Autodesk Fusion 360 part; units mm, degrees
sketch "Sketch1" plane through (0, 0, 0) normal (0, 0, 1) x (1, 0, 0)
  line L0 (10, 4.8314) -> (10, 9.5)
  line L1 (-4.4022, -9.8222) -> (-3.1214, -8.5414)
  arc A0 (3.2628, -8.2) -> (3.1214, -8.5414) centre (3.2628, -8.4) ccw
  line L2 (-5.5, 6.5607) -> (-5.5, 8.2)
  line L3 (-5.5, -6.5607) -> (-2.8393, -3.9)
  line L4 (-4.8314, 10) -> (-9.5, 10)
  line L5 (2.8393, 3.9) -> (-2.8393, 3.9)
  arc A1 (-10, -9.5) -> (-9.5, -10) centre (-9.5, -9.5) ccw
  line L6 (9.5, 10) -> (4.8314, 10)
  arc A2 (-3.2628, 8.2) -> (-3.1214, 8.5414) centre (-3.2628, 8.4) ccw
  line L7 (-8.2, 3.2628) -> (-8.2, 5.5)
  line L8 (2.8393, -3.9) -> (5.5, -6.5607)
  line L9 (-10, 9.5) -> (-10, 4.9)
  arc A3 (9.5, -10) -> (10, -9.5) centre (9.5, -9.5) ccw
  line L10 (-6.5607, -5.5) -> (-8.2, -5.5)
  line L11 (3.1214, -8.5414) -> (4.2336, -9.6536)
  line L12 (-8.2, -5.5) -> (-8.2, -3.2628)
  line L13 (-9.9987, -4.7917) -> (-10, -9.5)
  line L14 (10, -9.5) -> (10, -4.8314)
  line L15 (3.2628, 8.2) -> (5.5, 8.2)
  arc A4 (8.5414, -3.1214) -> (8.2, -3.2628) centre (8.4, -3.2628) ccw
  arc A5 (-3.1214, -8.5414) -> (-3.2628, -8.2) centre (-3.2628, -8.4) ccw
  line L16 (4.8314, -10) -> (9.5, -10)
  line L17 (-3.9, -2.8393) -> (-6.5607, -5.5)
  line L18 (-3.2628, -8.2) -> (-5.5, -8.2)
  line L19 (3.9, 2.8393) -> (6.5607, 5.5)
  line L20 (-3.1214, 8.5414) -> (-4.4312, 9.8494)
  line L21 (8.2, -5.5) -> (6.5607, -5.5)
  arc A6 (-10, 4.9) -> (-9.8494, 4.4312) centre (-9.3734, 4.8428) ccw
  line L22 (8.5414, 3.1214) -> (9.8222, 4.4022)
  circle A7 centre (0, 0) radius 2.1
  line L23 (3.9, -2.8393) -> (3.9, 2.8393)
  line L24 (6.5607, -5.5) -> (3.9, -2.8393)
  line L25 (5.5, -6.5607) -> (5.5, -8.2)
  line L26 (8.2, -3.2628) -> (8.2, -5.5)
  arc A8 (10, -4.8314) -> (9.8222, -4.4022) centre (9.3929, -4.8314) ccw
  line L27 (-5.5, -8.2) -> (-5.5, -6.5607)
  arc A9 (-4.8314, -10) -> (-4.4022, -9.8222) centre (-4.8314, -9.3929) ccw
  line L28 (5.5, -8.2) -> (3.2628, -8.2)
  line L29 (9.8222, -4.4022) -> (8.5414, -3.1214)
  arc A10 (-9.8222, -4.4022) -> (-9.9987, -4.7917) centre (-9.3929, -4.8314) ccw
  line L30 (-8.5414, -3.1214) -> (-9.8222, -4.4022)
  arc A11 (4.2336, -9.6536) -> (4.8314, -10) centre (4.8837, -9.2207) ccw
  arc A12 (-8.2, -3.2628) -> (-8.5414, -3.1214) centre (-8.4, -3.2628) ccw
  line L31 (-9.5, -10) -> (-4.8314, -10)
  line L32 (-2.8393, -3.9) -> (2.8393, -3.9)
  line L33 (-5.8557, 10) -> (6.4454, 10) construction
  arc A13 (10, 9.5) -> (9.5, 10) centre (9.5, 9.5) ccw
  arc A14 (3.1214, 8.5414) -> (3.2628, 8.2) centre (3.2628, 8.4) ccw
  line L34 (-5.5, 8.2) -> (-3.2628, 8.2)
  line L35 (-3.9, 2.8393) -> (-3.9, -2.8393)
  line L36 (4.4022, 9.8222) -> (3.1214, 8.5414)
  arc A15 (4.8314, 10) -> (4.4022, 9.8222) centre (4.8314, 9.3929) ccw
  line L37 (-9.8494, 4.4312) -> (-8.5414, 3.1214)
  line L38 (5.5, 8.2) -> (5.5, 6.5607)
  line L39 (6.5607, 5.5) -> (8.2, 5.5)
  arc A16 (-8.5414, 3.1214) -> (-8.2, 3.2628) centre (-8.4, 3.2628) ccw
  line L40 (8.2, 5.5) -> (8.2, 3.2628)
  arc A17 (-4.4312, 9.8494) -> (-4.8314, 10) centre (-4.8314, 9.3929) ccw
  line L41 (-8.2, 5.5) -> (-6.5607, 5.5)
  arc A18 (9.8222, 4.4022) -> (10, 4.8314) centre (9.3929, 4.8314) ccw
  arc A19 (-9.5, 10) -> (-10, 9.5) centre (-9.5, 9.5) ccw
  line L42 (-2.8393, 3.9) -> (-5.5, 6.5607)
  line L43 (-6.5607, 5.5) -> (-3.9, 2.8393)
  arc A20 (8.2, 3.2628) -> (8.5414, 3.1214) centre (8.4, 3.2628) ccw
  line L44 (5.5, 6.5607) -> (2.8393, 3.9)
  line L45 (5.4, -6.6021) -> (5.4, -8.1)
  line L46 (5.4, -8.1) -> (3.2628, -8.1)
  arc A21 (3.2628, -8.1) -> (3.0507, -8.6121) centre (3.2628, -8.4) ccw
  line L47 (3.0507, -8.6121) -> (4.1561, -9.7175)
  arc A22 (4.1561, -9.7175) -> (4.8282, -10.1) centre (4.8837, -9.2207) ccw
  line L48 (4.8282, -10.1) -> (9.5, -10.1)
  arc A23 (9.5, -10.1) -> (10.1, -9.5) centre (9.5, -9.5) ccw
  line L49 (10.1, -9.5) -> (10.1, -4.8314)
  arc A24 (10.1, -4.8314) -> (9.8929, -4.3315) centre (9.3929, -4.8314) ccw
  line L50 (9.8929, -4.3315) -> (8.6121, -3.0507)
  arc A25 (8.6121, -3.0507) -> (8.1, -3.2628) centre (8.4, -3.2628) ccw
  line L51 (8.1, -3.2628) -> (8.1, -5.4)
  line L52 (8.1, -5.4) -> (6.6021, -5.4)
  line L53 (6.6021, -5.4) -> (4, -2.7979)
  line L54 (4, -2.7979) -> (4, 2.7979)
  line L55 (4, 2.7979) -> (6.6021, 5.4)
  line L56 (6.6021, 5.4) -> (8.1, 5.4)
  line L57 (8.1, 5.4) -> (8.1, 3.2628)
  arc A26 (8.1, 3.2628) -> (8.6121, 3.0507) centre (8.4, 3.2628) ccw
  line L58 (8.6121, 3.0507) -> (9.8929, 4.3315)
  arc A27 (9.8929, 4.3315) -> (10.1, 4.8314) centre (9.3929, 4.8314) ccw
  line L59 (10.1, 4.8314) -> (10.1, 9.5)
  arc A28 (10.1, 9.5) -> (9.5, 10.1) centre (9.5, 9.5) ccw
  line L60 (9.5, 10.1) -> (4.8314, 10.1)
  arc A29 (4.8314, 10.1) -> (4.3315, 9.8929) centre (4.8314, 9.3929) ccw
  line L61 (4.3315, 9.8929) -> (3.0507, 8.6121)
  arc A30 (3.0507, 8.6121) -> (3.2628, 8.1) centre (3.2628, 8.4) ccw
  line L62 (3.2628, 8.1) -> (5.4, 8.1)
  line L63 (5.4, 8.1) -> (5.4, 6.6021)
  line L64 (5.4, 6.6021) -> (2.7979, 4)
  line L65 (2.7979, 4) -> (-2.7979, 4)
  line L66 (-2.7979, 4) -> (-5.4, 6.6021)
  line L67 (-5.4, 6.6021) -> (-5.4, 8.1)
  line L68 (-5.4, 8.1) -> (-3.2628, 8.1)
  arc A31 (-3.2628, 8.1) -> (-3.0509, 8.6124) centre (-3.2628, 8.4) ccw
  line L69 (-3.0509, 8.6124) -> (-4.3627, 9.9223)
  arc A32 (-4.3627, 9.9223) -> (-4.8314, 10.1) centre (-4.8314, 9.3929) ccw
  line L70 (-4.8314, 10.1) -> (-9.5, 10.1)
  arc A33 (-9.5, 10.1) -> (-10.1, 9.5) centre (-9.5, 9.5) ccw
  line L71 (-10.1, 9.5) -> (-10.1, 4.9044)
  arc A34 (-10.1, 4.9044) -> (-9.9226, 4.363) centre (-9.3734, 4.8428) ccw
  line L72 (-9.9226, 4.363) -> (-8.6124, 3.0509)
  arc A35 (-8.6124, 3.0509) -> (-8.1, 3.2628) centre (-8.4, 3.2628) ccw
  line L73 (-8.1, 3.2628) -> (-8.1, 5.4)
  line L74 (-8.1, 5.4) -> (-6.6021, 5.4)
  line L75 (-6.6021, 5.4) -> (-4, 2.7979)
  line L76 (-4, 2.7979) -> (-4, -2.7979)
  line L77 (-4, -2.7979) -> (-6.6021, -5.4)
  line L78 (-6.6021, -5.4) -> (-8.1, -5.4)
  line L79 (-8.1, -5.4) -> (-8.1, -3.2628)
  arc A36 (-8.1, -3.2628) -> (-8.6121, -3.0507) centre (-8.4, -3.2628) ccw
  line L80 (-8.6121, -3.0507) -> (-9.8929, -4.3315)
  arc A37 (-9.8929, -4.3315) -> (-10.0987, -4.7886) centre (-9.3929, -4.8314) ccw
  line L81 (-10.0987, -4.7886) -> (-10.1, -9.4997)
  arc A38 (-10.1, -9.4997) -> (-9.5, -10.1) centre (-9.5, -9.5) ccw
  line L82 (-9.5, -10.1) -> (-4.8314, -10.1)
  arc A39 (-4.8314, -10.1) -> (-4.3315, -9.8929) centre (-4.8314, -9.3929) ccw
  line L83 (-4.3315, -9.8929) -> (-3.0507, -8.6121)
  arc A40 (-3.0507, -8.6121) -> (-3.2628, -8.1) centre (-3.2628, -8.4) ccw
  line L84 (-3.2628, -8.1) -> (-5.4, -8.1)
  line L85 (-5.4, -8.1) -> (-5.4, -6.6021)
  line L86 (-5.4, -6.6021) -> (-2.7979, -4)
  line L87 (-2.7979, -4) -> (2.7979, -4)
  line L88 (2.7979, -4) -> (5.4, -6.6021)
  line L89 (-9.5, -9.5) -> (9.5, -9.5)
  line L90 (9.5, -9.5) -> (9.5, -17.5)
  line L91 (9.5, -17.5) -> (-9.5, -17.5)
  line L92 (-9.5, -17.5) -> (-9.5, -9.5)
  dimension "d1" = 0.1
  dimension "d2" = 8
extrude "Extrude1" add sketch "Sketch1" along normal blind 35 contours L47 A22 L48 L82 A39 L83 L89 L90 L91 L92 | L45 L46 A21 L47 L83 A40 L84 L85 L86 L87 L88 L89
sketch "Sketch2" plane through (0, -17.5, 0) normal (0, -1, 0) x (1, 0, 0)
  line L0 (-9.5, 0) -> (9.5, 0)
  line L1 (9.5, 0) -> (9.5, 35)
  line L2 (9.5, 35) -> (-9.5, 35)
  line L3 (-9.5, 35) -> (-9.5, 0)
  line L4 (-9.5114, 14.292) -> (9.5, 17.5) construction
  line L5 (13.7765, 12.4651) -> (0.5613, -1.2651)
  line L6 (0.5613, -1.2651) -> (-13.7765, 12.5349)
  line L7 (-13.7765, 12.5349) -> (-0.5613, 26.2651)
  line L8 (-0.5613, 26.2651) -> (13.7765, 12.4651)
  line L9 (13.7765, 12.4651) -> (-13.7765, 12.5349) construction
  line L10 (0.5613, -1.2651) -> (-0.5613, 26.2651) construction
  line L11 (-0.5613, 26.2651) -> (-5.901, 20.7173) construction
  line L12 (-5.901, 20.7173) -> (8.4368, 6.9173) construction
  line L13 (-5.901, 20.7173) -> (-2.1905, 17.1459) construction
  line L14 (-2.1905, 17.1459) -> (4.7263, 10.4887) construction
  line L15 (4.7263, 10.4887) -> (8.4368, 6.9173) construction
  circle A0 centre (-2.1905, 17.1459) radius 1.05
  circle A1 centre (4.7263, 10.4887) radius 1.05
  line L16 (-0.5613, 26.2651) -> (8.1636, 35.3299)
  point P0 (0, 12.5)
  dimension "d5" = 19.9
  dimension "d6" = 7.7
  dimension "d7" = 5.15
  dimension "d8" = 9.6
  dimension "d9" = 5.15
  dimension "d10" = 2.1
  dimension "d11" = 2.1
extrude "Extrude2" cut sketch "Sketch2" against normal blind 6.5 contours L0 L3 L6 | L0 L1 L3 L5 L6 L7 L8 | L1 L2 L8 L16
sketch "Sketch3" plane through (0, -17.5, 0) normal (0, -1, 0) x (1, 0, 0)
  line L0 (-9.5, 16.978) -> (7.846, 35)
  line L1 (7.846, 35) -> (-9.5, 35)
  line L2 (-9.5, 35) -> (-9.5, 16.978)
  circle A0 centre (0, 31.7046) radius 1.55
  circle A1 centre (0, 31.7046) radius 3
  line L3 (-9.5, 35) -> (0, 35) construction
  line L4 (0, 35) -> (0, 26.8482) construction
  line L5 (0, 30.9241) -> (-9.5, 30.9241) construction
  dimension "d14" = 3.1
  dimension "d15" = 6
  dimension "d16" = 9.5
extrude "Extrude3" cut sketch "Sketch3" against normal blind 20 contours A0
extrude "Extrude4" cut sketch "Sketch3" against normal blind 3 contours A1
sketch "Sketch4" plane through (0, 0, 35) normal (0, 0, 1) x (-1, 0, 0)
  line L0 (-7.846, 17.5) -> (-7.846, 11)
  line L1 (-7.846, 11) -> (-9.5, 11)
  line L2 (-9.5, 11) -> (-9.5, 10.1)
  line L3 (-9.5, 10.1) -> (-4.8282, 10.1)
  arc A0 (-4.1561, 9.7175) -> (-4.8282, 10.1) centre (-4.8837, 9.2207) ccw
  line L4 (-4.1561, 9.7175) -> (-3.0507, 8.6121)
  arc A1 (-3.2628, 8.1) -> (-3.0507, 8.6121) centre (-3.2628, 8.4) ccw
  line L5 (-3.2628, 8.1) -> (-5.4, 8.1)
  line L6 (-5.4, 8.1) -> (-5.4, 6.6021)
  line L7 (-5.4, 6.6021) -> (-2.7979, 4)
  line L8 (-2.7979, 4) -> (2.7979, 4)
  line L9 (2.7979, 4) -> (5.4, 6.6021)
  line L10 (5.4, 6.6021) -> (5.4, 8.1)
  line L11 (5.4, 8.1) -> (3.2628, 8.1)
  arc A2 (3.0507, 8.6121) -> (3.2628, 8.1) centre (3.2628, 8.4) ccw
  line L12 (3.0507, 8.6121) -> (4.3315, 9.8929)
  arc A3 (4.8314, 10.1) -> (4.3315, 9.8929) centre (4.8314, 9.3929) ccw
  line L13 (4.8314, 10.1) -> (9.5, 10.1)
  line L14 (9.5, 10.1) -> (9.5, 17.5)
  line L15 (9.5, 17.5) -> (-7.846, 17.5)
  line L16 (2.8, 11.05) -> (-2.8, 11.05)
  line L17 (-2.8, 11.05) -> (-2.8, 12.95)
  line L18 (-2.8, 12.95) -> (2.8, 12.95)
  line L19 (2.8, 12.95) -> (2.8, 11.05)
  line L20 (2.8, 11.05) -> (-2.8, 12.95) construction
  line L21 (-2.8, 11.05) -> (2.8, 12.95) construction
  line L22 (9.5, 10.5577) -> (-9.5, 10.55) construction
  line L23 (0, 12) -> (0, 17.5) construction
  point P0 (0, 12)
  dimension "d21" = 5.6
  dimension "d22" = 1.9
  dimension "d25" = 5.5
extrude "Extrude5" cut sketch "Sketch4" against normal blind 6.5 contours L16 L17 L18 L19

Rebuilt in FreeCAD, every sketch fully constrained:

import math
import FreeCAD as App
import Part
import Sketcher
from FreeCAD import Vector
Q = App.Units.Quantity


def add_polygon(sketch, points):
    """Adds a closed chain of lines whose ends are joined by coincident constraints."""
    first, n = sketch.GeometryCount, len(points)
    for a, b in zip(points, points[1:] + points[:1]):
        sketch.addGeometry(Part.LineSegment(App.Vector(*a, 0), App.Vector(*b, 0)), False)
    for i in range(n):
        sketch.addConstraint(Sketcher.Constraint("Coincident", first + i, 2, first + (i + 1) % n, 1))

doc = App.newDocument("Part")
body = doc.addObject("PartDesign::Body", "Body")

# Sketch on XY plane
sketch1 = body.newObject("Sketcher::SketchObject", "Sketch")
sketch1.AttachmentSupport = (doc.getObject("XY_Plane"), [""])
sketch1.MapMode = "FlatFace"
sketch1.addGeometry(Part.LineSegment(Vector(9.5, -17.5, 0), Vector(9.5, -10.1, 0)), False)
sketch1.addGeometry(Part.LineSegment(Vector(9.5, -10.1, 0), Vector(4.8282, -10.1, 0)), False)
sketch1.addGeometry(Part.ArcOfCircle(Part.Circle(Vector(4.8837, -9.2207, 0), Vector(0, 0, 1), 0.881029), math.radians(-145.675022), math.radians(-93.611626)), False)
sketch1.addGeometry(Part.LineSegment(Vector(4.1561, -9.7175, 0), Vector(3.0507, -8.6121, 0)), False)
sketch1.addGeometry(Part.ArcOfCircle(Part.Circle(Vector(3.2628, -8.4, 0), Vector(0, 0, 1), 0.3), math.radians(90), math.radians(225)), False)
sketch1.addGeometry(Part.LineSegment(Vector(3.2628, -8.1, 0), Vector(5.4, -8.1, 0)), False)
sketch1.addGeometry(Part.LineSegment(Vector(5.4, -8.1, 0), Vector(5.4, -6.6021, 0)), False)
sketch1.addGeometry(Part.LineSegment(Vector(5.4, -6.6021, 0), Vector(2.7979, -4, 0)), False)
sketch1.addGeometry(Part.LineSegment(Vector(2.7979, -4, 0), Vector(-2.7979, -4, 0)), False)
sketch1.addGeometry(Part.LineSegment(Vector(-2.7979, -4, 0), Vector(-5.4, -6.6021, 0)), False)
sketch1.addGeometry(Part.LineSegment(Vector(-5.4, -6.6021, 0), Vector(-5.4, -8.1, 0)), False)
sketch1.addGeometry(Part.LineSegment(Vector(-5.4, -8.1, 0), Vector(-3.2628, -8.1, 0)), False)
sketch1.addGeometry(Part.ArcOfCircle(Part.Circle(Vector(-3.2628, -8.4, 0), Vector(0, 0, 1), 0.299955), math.radians(-45), math.radians(90)), False)
sketch1.addGeometry(Part.LineSegment(Vector(-3.0507, -8.6121, 0), Vector(-4.3315, -9.8929, 0)), False)
sketch1.addGeometry(Part.ArcOfCircle(Part.Circle(Vector(-4.8314, -9.3929, 0), Vector(0, 0, 1), 0.7071), math.radians(-90), math.radians(-45.00573)), False)
sketch1.addGeometry(Part.LineSegment(Vector(-4.8314, -10.1, 0), Vector(-9.5, -10.1, 0)), False)
sketch1.addGeometry(Part.LineSegment(Vector(-9.5, -10.1, 0), Vector(-9.5, -17.5, 0)), False)
sketch1.addGeometry(Part.LineSegment(Vector(-9.5, -17.5, 0), Vector(9.5, -17.5, 0)), False)
sketch1.addConstraint(Sketcher.Constraint("Coincident", 0, 2, 1, 1))
sketch1.addConstraint(Sketcher.Constraint("Coincident", 1, 2, 2, 2))
sketch1.addConstraint(Sketcher.Constraint("Coincident", 2, 1, 3, 1))
sketch1.addConstraint(Sketcher.Constraint("Tangent", 3, 2, 4, 2))
sketch1.addConstraint(Sketcher.Constraint("Tangent", 4, 1, 5, 1))
sketch1.addConstraint(Sketcher.Constraint("Coincident", 5, 2, 6, 1))
sketch1.addConstraint(Sketcher.Constraint("Coincident", 6, 2, 7, 1))
sketch1.addConstraint(Sketcher.Constraint("Coincident", 7, 2, 8, 1))
sketch1.addConstraint(Sketcher.Constraint("Coincident", 8, 2, 9, 1))
sketch1.addConstraint(Sketcher.Constraint("Coincident", 9, 2, 10, 1))
sketch1.addConstraint(Sketcher.Constraint("Coincident", 10, 2, 11, 1))
sketch1.addConstraint(Sketcher.Constraint("Tangent", 11, 2, 12, 2))
sketch1.addConstraint(Sketcher.Constraint("Tangent", 12, 1, 13, 1))
sketch1.addConstraint(Sketcher.Constraint("Tangent", 13, 2, 14, 2))
sketch1.addConstraint(Sketcher.Constraint("Tangent", 14, 1, 15, 1))
sketch1.addConstraint(Sketcher.Constraint("Coincident", 15, 2, 16, 1))
sketch1.addConstraint(Sketcher.Constraint("Coincident", 16, 2, 17, 1))
sketch1.addConstraint(Sketcher.Constraint("Coincident", 17, 2, 0, 1))
sketch1.addConstraint(Sketcher.Constraint("Vertical", 0))
sketch1.addConstraint(Sketcher.Constraint("Horizontal", 1))
sketch1.addConstraint(Sketcher.Constraint("Horizontal", 5))
sketch1.addConstraint(Sketcher.Constraint("Vertical", 6))
sketch1.addConstraint(Sketcher.Constraint("Horizontal", 8))
sketch1.addConstraint(Sketcher.Constraint("Vertical", 10))
sketch1.addConstraint(Sketcher.Constraint("Horizontal", 11))
sketch1.addConstraint(Sketcher.Constraint("Horizontal", 15))
sketch1.addConstraint(Sketcher.Constraint("Vertical", 16))
sketch1.addConstraint(Sketcher.Constraint("Horizontal", 17))
sketch1.addConstraint(Sketcher.Constraint("Equal", 4, 12))
sketch1.addConstraint(Sketcher.Constraint("Symmetric", 4, 3, 12, 3, -2))
sketch1.addConstraint(Sketcher.Constraint("Symmetric", 6, 2, 9, 2, -2))
sketch1.addConstraint(Sketcher.Constraint("Symmetric", 0, 2, 15, 2, -2))
sketch1.addConstraint(Sketcher.Constraint("Parallel", 3, 7))
sketch1.addConstraint(Sketcher.Constraint("Perpendicular", 7, 9))
sketch1.addConstraint(Sketcher.Constraint("Parallel", 9, 13))
sketch1.addConstraint(Sketcher.Constraint("Horizontal", 3, 2, 12, 1))
sketch1.addConstraint(Sketcher.Constraint("Radius", 4, Q("0.3 mm")))
sketch1.addConstraint(Sketcher.Constraint("DistanceX", 17, 1, 17, 2, Q("19 mm")))
sketch1.addConstraint(Sketcher.Constraint("DistanceY", 0, 1, 0, 2, Q("7.4 mm")))
sketch1.addConstraint(Sketcher.Constraint("DistanceY", 7, 2, -1, 1, Q("4 mm")))
sketch1.addConstraint(Sketcher.Constraint("Radius", 2, Q("0.881 mm")))
sketch1.addConstraint(Sketcher.Constraint("Radius", 14, Q("0.707 mm")))
sketch1.addConstraint(Sketcher.Constraint("DistanceY", 1, 2, 4, 1, Q("2 mm")))
sketch1.addConstraint(Sketcher.Constraint("DistanceY", 4, 3, -1, 1, Q("8.4 mm")))
sketch1.addConstraint(Sketcher.Constraint("DistanceX", -1, 1, 5, 2, Q("5.4 mm")))
sketch1.addConstraint(Sketcher.Constraint("Distance", 7, Q("3.68 mm")))
sketch1.addConstraint(Sketcher.Constraint("DistanceX", 1, 2, 1, 1, Q("4.6718 mm")))
sketch1.addConstraint(Sketcher.Constraint("DistanceX", 5, 1, 5, 2, Q("2.1372 mm")))
sketch1.addConstraint(Sketcher.Constraint("DistanceX", -1, 1, 2, 1, Q("4.156 mm")))
pad1 = body.newObject("PartDesign::Pad", "Pad")
pad1.Profile = sketch1
pad1.Length = 35

# Sketch on XZ plane
sketch2 = body.newObject("Sketcher::SketchObject", "Sketch001")
sketch2.AttachmentSupport = (doc.getObject("XZ_Plane"), [""])
sketch2.MapMode = "FlatFace"
sketch2.AttachmentOffset = App.Placement(Vector(0, 0, 17.5), App.Rotation())
add_polygon(sketch2, [(-9.5, 0), (1.778948, 0), (9.5, 8.021944), (9.5, 35), (7.84607, 35), (-0.5613, 26.2651), (-9.5, 16.978056)])  # lines 0-6
sketch2.addGeometry(Part.Circle(Vector(-2.1905, 17.1459, 0), Vector(0, 0, 1), 1.05), False)  # 7
sketch2.addGeometry(Part.Circle(Vector(4.7263, 10.4887, 0), Vector(0, 0, 1), 1.05), False)  # 8
sketch2.addConstraint(Sketcher.Constraint("Horizontal", 0))
sketch2.addConstraint(Sketcher.Constraint("Vertical", 2))
sketch2.addConstraint(Sketcher.Constraint("Horizontal", 3))
sketch2.addConstraint(Sketcher.Constraint("Vertical", 6))
sketch2.addConstraint(Sketcher.Constraint("Equal", 7, 8))
sketch2.addConstraint(Sketcher.Constraint("PointOnObject", 0, 2, -1))
sketch2.addConstraint(Sketcher.Constraint("Parallel", 1, 4))
sketch2.addConstraint(Sketcher.Constraint("Parallel", 4, 5))
sketch2.addConstraint(Sketcher.Constraint("Diameter", 7, Q("2.1 mm")))
sketch2.addConstraint(Sketcher.Constraint("DistanceY", -1, 1, 2, 2, Q("35 mm")))
sketch2.addConstraint(Sketcher.Constraint("DistanceX", 5, 2, 1, 2, Q("19 mm")))
sketch2.addConstraint(Sketcher.Constraint("DistanceX", -1, 1, 1, 2, Q("9.5 mm")))
sketch2.addConstraint(Sketcher.Constraint("Distance", 5, Q("12.89 mm")))
sketch2.addConstraint(Sketcher.Constraint("DistanceX", 0, 1, 0, 2, Q("11.279 mm")))
sketch2.addConstraint(Sketcher.Constraint("DistanceX", 3, 2, 3, 1, Q("1.654 mm")))
sketch2.addConstraint(Sketcher.Constraint("DistanceY", 2, 1, 2, 2, Q("26.978 mm")))
sketch2.addConstraint(Sketcher.Constraint("DistanceY", -1, 1, 7, 3, Q("17.146 mm")))
sketch2.addConstraint(Sketcher.Constraint("DistanceX", 7, 3, -1, 1, Q("2.1905 mm")))
sketch2.addConstraint(Sketcher.Constraint("DistanceX", -1, 1, 8, 3, Q("4.7263 mm")))
sketch2.addConstraint(Sketcher.Constraint("DistanceY", -1, 1, 8, 3, Q("10.4887 mm")))
pocket1 = body.newObject("PartDesign::Pocket", "Pocket")
pocket1.Profile = sketch2
pocket1.Length = 6.5

# Sketch on XZ plane
sketch3 = body.newObject("Sketcher::SketchObject", "Sketch002")
sketch3.AttachmentSupport = (doc.getObject("XZ_Plane"), [""])
sketch3.MapMode = "FlatFace"
sketch3.AttachmentOffset = App.Placement(Vector(0, 0, 17.5), App.Rotation())
sketch3.addGeometry(Part.Circle(Vector(0, 31.7046, 0), Vector(0, 0, 1), 1.55), False)
sketch3.addConstraint(Sketcher.Constraint("PointOnObject", 0, 3, -2))
sketch3.addConstraint(Sketcher.Constraint("Diameter", 0, Q("3.1 mm")))
sketch3.addConstraint(Sketcher.Constraint("DistanceY", -1, 1, 0, 3, Q("31.7046 mm")))
pocket2 = body.newObject("PartDesign::Pocket", "Pocket001")
pocket2.Profile = sketch3
pocket2.Length = 20

# Sketch on XZ plane
sketch4 = body.newObject("Sketcher::SketchObject", "Sketch003")
sketch4.AttachmentSupport = (doc.getObject("XZ_Plane"), [""])
sketch4.MapMode = "FlatFace"
sketch4.AttachmentOffset = App.Placement(Vector(0, 0, 17.5), App.Rotation())
sketch4.addGeometry(Part.Circle(Vector(0, 31.7046, 0), Vector(0, 0, 1), 3), False)
sketch4.addGeometry(Part.Circle(Vector(0, 31.7046, 0), Vector(0, 0, 1), 1.55), False)
sketch4.addConstraint(Sketcher.Constraint("Coincident", 1, 3, 0, 3))
sketch4.addConstraint(Sketcher.Constraint("PointOnObject", 0, 3, -2))
sketch4.addConstraint(Sketcher.Constraint("Diameter", 0, Q("6 mm")))
sketch4.addConstraint(Sketcher.Constraint("Diameter", 1, Q("3.1 mm")))
sketch4.addConstraint(Sketcher.Constraint("DistanceY", -1, 1, 0, 3, Q("31.7046 mm")))
pocket3 = body.newObject("PartDesign::Pocket", "Pocket002")
pocket3.Profile = sketch4
pocket3.Length = 3

# Sketch on XY plane
sketch5 = body.newObject("Sketcher::SketchObject", "Sketch004")
sketch5.AttachmentSupport = (doc.getObject("XY_Plane"), [""])
sketch5.MapMode = "FlatFace"
sketch5.AttachmentOffset = App.Placement(Vector(0, 0, 35), App.Rotation())
add_polygon(sketch5, [(2.8, -11.05), (-2.8, -11.05), (-2.8, -12.95), (2.8, -12.95)])  # lines 0-3
sketch5.addConstraint(Sketcher.Constraint("Horizontal", 0))
sketch5.addConstraint(Sketcher.Constraint("Vertical", 1))
sketch5.addConstraint(Sketcher.Constraint("Horizontal", 2))
sketch5.addConstraint(Sketcher.Constraint("Vertical", 3))
sketch5.addConstraint(Sketcher.Constraint("DistanceX", 0, 2, 0, 1, Q("5.6 mm")))
sketch5.addConstraint(Sketcher.Constraint("DistanceY", 1, 2, 1, 1, Q("1.9 mm")))
sketch5.addConstraint(Sketcher.Constraint("DistanceX", 0, 2, -1, 1, Q("2.8 mm")))
sketch5.addConstraint(Sketcher.Constraint("DistanceY", 0, 2, -1, 1, Q("11.05 mm")))
pocket4 = body.newObject("PartDesign::Pocket", "Pocket003")
pocket4.Profile = sketch5
pocket4.Length = 6.5

doc.recompute()
